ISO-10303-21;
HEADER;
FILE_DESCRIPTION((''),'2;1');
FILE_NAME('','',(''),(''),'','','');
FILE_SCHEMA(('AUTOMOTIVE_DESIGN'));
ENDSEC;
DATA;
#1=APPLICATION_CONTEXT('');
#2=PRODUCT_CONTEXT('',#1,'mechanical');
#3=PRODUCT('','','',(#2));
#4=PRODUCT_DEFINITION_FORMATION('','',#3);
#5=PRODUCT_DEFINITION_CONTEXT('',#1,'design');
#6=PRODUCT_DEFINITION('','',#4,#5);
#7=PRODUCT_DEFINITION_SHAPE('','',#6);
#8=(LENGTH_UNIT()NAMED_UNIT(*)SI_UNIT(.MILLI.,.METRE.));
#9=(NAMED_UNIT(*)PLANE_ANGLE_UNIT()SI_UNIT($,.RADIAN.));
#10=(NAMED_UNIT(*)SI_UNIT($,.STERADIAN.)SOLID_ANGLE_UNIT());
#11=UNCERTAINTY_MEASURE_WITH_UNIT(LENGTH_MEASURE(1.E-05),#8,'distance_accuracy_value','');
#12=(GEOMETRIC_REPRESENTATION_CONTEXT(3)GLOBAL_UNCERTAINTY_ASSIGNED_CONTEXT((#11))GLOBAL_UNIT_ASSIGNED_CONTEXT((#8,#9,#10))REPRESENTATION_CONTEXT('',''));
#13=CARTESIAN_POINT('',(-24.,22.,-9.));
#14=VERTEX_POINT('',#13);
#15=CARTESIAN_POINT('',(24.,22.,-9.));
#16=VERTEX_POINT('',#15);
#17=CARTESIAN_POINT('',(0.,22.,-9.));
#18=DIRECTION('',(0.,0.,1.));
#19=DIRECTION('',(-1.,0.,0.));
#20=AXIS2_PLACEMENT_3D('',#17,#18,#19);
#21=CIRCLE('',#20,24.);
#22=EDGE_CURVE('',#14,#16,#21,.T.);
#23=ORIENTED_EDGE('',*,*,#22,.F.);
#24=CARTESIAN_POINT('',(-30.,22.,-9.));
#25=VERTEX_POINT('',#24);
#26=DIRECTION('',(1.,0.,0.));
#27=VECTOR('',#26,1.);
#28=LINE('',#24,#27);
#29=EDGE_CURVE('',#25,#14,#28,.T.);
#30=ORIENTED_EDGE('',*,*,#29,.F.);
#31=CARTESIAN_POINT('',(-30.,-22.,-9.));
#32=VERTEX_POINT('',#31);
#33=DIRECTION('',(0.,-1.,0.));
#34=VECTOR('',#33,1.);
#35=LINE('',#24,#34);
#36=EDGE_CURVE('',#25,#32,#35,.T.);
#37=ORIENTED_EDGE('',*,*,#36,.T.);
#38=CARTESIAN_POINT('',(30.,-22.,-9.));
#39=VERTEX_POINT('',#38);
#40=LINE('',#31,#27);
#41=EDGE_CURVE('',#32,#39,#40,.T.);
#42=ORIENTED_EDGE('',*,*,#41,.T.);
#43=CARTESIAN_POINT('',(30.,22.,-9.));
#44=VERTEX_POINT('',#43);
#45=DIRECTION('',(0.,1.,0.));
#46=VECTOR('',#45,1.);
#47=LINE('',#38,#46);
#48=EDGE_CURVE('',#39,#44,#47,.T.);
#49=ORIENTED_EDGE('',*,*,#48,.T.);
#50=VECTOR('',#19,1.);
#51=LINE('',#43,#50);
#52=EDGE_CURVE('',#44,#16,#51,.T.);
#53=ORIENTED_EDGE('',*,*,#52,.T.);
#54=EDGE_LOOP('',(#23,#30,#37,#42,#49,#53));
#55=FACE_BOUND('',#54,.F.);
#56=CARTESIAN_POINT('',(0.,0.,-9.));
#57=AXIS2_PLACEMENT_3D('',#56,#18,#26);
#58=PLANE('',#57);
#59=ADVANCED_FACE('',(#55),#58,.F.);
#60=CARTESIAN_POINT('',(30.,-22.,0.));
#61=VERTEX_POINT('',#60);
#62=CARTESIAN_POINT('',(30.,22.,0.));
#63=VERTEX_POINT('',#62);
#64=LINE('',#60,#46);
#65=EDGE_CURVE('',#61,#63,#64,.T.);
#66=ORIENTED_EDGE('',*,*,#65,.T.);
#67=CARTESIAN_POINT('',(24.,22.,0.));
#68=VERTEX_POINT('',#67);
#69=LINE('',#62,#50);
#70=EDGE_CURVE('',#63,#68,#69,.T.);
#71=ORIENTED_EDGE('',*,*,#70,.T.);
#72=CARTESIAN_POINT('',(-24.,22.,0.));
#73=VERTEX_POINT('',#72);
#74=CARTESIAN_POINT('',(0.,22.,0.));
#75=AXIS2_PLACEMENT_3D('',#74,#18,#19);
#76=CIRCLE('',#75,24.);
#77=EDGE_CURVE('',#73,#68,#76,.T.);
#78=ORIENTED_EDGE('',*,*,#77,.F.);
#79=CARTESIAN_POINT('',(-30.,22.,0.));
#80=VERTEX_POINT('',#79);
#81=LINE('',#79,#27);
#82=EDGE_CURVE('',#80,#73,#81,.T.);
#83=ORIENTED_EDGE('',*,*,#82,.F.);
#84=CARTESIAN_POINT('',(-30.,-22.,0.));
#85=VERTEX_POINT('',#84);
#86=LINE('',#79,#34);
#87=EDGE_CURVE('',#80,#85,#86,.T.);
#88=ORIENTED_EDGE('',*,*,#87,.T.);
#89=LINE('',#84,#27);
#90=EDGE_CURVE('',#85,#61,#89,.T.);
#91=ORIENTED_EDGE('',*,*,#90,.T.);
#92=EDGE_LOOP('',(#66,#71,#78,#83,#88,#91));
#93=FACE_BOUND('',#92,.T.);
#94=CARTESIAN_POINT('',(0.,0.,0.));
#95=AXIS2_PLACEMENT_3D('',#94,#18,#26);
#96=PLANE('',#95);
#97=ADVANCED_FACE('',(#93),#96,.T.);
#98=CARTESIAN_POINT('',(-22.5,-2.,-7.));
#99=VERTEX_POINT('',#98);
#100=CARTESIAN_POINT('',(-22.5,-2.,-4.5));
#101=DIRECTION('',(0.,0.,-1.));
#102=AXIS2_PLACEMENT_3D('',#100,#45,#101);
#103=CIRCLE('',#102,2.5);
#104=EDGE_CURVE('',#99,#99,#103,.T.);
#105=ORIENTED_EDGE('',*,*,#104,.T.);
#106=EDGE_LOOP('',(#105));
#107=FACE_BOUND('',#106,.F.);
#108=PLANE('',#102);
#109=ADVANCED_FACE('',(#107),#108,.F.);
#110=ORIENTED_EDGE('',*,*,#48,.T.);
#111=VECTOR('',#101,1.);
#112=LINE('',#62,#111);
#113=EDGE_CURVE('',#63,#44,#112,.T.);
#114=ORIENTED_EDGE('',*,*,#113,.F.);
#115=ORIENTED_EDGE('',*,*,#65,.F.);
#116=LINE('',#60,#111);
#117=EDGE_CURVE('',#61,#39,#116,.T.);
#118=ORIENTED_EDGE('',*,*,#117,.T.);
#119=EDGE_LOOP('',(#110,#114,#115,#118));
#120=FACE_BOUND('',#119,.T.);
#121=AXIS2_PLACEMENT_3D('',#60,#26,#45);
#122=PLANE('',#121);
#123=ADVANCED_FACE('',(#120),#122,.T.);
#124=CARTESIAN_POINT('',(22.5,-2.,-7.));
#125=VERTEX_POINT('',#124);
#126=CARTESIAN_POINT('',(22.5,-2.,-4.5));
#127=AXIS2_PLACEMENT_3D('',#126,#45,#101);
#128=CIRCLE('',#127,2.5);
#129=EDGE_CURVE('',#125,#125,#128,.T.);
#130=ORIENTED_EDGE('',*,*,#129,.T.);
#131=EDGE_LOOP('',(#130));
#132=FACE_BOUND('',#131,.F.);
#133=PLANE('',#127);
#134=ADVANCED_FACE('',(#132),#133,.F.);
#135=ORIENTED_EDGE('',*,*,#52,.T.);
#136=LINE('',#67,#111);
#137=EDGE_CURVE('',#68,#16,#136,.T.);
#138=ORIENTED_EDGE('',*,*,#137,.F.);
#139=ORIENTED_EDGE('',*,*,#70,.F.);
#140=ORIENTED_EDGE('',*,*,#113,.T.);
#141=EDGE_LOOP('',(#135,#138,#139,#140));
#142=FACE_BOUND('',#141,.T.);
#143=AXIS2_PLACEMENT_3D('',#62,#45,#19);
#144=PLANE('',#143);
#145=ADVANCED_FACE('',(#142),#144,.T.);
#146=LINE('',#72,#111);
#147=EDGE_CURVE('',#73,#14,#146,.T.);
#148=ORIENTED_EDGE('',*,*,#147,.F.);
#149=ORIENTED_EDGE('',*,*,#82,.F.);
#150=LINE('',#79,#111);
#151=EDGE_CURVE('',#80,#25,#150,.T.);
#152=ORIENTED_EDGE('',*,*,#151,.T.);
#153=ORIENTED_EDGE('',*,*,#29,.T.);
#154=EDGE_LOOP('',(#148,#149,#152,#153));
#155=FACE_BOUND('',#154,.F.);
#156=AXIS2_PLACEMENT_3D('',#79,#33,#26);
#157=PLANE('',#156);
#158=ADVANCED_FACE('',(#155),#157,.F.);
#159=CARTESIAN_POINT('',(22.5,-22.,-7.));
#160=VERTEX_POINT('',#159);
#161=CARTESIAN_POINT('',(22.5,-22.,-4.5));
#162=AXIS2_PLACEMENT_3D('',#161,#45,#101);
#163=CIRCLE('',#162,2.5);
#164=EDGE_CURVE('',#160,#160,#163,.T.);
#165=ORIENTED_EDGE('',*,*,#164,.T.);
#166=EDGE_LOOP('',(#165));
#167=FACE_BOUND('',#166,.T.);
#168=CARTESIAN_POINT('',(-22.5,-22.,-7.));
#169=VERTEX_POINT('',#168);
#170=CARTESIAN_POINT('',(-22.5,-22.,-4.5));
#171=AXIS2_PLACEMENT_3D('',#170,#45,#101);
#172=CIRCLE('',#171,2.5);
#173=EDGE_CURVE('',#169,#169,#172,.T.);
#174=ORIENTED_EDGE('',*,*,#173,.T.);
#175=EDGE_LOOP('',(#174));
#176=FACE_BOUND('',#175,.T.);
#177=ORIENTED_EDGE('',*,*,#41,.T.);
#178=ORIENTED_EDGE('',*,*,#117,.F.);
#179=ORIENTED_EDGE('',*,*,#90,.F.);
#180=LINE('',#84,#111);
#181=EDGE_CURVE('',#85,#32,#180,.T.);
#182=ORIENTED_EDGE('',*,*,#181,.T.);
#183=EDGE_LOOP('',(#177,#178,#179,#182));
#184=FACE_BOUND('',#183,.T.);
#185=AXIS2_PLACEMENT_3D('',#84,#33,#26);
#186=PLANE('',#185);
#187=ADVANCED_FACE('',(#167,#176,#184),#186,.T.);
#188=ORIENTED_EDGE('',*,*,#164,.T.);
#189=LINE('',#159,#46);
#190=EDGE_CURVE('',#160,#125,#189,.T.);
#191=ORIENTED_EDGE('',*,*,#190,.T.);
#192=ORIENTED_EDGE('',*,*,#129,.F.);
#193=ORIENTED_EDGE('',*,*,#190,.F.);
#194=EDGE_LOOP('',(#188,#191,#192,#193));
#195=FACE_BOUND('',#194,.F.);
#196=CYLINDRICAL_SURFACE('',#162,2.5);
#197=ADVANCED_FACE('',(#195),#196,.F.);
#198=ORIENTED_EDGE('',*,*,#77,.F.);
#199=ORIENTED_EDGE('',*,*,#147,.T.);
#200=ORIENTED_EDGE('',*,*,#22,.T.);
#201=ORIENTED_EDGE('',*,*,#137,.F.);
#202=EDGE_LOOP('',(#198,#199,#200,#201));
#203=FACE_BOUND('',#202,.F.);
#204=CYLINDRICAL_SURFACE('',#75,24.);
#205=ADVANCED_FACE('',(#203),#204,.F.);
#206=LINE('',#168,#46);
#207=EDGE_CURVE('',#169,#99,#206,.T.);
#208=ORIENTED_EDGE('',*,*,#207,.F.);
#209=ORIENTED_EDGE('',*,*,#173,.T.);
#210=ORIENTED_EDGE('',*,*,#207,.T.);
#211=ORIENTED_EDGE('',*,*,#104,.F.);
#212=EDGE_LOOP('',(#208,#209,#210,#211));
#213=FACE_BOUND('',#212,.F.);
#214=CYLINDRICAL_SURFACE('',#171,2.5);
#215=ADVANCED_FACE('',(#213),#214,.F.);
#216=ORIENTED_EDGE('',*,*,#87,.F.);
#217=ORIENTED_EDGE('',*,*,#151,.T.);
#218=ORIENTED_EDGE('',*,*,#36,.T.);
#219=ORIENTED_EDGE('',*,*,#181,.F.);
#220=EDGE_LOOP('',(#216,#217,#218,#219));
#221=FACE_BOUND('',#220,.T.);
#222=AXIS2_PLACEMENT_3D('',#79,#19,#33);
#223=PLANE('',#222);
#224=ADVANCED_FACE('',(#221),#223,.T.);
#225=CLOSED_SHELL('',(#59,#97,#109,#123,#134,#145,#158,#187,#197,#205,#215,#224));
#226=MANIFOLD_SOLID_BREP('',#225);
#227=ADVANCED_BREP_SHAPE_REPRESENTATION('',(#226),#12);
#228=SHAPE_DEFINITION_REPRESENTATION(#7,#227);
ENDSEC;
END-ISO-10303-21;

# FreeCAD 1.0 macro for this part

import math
import FreeCAD as App
import Part
import Sketcher
Q = App.Units.Quantity

doc = App.newDocument("Part")
body = doc.addObject("PartDesign::Body", "Body")

# Sketch on XY plane
sketch1 = body.newObject("Sketcher::SketchObject", "Sketch")
sketch1.AttachmentSupport = (doc.getObject("XY_Plane"), [""])
sketch1.MapMode = "FlatFace"
sketch1.addGeometry([
    Part.LineSegment(App.Vector(-24, 22, 0), App.Vector(-30, 22, 0)),  # 0
    Part.LineSegment(App.Vector(-30, 22, 0), App.Vector(-30, -22, 0)),  # 1
    Part.LineSegment(App.Vector(-30, -22, 0), App.Vector(30, -22, 0)),  # 2
    Part.LineSegment(App.Vector(30, -22, 0), App.Vector(30, 22, 0)),  # 3
    Part.LineSegment(App.Vector(30, 22, 0), App.Vector(24, 22, 0)),  # 4
    Part.ArcOfCircle(Part.Circle(App.Vector(0, 22, 0), App.Vector(0, 0, 1), 24), math.radians(180), math.radians(360)),  # 5
], False)
sketch1.addConstraint([
    Sketcher.Constraint("Coincident", 0, 2, 1, 1),
    Sketcher.Constraint("Coincident", 1, 2, 2, 1),
    Sketcher.Constraint("Coincident", 2, 2, 3, 1),
    Sketcher.Constraint("Coincident", 3, 2, 4, 1),
    Sketcher.Constraint("Coincident", 4, 2, 5, 2),
    Sketcher.Constraint("Coincident", 5, 1, 0, 1),
    Sketcher.Constraint("Horizontal", 0),
    Sketcher.Constraint("Vertical", 1),
    Sketcher.Constraint("Horizontal", 2),
    Sketcher.Constraint("Vertical", 3),
    Sketcher.Constraint("Horizontal", 4),
    Sketcher.Constraint("Symmetric", 0, 2, 2, 2, -1, 1),
    Sketcher.Constraint("Symmetric", 4, 2, 5, 1, -2),
    Sketcher.Constraint("Horizontal", 5, 3, 0, 2),
    Sketcher.Constraint("Radius", 5, Q("24 mm")),
    Sketcher.Constraint("DistanceX", 0, 2, 0, 1, Q("6 mm")),
    Sketcher.Constraint("DistanceY", 1, 2, 1, 1, Q("44 mm")),
])
pad1 = body.newObject("PartDesign::Pad", "Pad")
pad1.Profile = sketch1
pad1.Length = 9
pad1.Reversed = True

# Sketch on XZ plane
sketch2 = body.newObject("Sketcher::SketchObject", "Sketch001")
sketch2.AttachmentSupport = (doc.getObject("XZ_Plane"), [""])
sketch2.MapMode = "FlatFace"
sketch2.AttachmentOffset = App.Placement(App.Vector(0, 0, 22), App.Rotation())
sketch2.addGeometry([
    Part.Circle(App.Vector(22.5, -4.5, 0), App.Vector(0, 0, 1), 2.5),
    Part.Circle(App.Vector(-22.5, -4.5, 0), App.Vector(0, 0, 1), 2.5),
], False)
sketch2.addConstraint([
    Sketcher.Constraint("Equal", 0, 1),
    Sketcher.Constraint("Symmetric", 0, 3, 1, 3, -2),
    Sketcher.Constraint("Diameter", 0, Q("5 mm")),
    Sketcher.Constraint("DistanceX", 1, 3, 0, 3, Q("45 mm")),
    Sketcher.Constraint("DistanceY", 0, 3, -1, 1, Q("4.5 mm")),
])
doc.recompute()
hole = body.newObject("PartDesign::Hole", "Hole")
hole.Profile = sketch2
hole.ThreadType = "None"
hole.Diameter = 5
hole.DepthType = "Dimension"
hole.Depth = 20
hole.DrillPoint = "Flat"

doc.recompute()
